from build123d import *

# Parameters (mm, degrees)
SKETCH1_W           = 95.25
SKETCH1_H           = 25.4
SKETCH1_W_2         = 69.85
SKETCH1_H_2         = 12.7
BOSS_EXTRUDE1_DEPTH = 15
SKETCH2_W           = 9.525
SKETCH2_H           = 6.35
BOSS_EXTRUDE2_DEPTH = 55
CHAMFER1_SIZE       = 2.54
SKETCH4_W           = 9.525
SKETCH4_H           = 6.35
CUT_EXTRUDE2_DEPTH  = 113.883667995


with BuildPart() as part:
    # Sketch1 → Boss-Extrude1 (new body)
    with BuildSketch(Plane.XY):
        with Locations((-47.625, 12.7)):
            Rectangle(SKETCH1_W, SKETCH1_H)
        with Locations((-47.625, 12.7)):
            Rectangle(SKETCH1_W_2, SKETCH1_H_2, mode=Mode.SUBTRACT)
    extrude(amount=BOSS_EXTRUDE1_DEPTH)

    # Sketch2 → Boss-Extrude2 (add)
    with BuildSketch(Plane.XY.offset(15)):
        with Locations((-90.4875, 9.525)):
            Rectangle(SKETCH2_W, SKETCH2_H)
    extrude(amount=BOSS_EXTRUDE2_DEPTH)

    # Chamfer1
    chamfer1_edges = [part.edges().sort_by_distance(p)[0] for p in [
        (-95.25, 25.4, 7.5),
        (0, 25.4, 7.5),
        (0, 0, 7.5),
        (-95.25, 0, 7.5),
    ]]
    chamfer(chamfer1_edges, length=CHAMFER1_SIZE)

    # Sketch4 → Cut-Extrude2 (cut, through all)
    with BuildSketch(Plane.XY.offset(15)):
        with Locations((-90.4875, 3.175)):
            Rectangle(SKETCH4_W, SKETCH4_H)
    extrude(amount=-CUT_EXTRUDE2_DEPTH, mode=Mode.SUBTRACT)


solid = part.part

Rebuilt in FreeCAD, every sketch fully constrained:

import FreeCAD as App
import Part
import Sketcher
Q = App.Units.Quantity


def edges_at(feature, points):
    """Names of the edges that pass closest to the given points."""
    edges = feature.Shape.Edges
    near = lambda p: min(range(len(edges)), key=lambda i: edges[i].distToShape(Part.Vertex(*p))[0])
    return sorted({f"Edge{near(p) + 1}" for p in points})

doc = App.newDocument("Part")
body = doc.addObject("PartDesign::Body", "Body")

# Sketch on XY plane
sketch1 = body.newObject("Sketcher::SketchObject", "Sketch")
sketch1.AttachmentSupport = (doc.getObject("XY_Plane"), [""])
sketch1.MapMode = "FlatFace"
sketch1.addGeometry([
    Part.LineSegment(App.Vector(-95, 25, 0), App.Vector(-95, 0, 0)),  # 0
    Part.LineSegment(App.Vector(-95, 0, 0), App.Vector(0, 0, 0)),  # 1
    Part.LineSegment(App.Vector(0, 0, 0), App.Vector(0, 25, 0)),  # 2
    Part.LineSegment(App.Vector(0, 25, 0), App.Vector(-95, 25, 0)),  # 3
    Part.LineSegment(App.Vector(-13, 6, 0), App.Vector(-83, 6, 0)),  # 4
    Part.LineSegment(App.Vector(-83, 6, 0), App.Vector(-83, 19, 0)),  # 5
    Part.LineSegment(App.Vector(-83, 19, 0), App.Vector(-13, 19, 0)),  # 6
    Part.LineSegment(App.Vector(-13, 19, 0), App.Vector(-13, 6, 0)),  # 7
], False)
sketch1.addConstraint([
    Sketcher.Constraint("Coincident", 0, 2, 1, 1),
    Sketcher.Constraint("Coincident", 1, 2, 2, 1),
    Sketcher.Constraint("Coincident", 2, 2, 3, 1),
    Sketcher.Constraint("Coincident", 3, 2, 0, 1),
    Sketcher.Constraint("Coincident", 4, 2, 5, 1),
    Sketcher.Constraint("Coincident", 5, 2, 6, 1),
    Sketcher.Constraint("Coincident", 6, 2, 7, 1),
    Sketcher.Constraint("Coincident", 7, 2, 4, 1),
    Sketcher.Constraint("Vertical", 0),
    Sketcher.Constraint("Horizontal", 1),
    Sketcher.Constraint("Vertical", 2),
    Sketcher.Constraint("Horizontal", 3),
    Sketcher.Constraint("Horizontal", 4),
    Sketcher.Constraint("Vertical", 5),
    Sketcher.Constraint("Horizontal", 6),
    Sketcher.Constraint("Vertical", 7),
    Sketcher.Constraint("Coincident", 1, 2, -1, 1),
    Sketcher.Constraint("DistanceY", 0, 2, 0, 1, Q("1 in")),
    Sketcher.Constraint("DistanceY", 5, 1, 5, 2, Q("0.5 in")),
    Sketcher.Constraint("DistanceX", 1, 1, 1, 2, Q("3.75 in")),
    Sketcher.Constraint("DistanceX", 4, 2, 4, 1, Q("2.75 in")),
    Sketcher.Constraint("DistanceX", 6, 2, -1, 1, Q("0.5 in")),
    Sketcher.Constraint("DistanceY", -1, 1, 4, 2, Q("0.25 in")),
])
pad1 = body.newObject("PartDesign::Pad", "Pad")
pad1.Profile = sketch1
pad1.Length = 15

# Sketch on XY plane
sketch2 = body.newObject("Sketcher::SketchObject", "Sketch001")
sketch2.AttachmentSupport = (doc.getObject("XY_Plane"), [""])
sketch2.MapMode = "FlatFace"
sketch2.AttachmentOffset = App.Placement(App.Vector(0, 0, 15), App.Rotation())
sketch2.addGeometry([
    Part.LineSegment(App.Vector(-95, 13, 0), App.Vector(-95, 6, 0)),
    Part.LineSegment(App.Vector(-95, 6, 0), App.Vector(-86, 6, 0)),
    Part.LineSegment(App.Vector(-86, 6, 0), App.Vector(-86, 13, 0)),
    Part.LineSegment(App.Vector(-86, 13, 0), App.Vector(-95, 13, 0)),
], False)
sketch2.addConstraint([
    Sketcher.Constraint("Coincident", 0, 2, 1, 1),
    Sketcher.Constraint("Coincident", 1, 2, 2, 1),
    Sketcher.Constraint("Coincident", 2, 2, 3, 1),
    Sketcher.Constraint("Coincident", 3, 2, 0, 1),
    Sketcher.Constraint("Vertical", 0),
    Sketcher.Constraint("Horizontal", 1),
    Sketcher.Constraint("Vertical", 2),
    Sketcher.Constraint("Horizontal", 3),
    Sketcher.Constraint("DistanceY", 0, 2, 0, 1, Q("0.25 in")),
    Sketcher.Constraint("DistanceY", -1, 1, 2, 2, Q("0.5 in")),
    Sketcher.Constraint("DistanceX", 1, 1, 1, 2, Q("0.375 in")),
    Sketcher.Constraint("DistanceX", 0, 2, -1, 1, Q("3.75 in")),
])
pad2 = body.newObject("PartDesign::Pad", "Pad001")
pad2.Profile = sketch2
pad2.Length = 55
doc.recompute()

chamfer = body.newObject("PartDesign::Chamfer", "Chamfer")
chamfer.Base = (pad2, edges_at(pad2, [
    (-95.25, 25.4, 7.5),
    (0, 25.4, 7.5),
    (0, 0, 7.5),
    (-95.25, 0, 7.5),
]))
chamfer.Size = Q("0.1 in")

# Sketch on XY plane
sketch3 = body.newObject("Sketcher::SketchObject", "Sketch002")
sketch3.AttachmentSupport = (doc.getObject("XY_Plane"), [""])
sketch3.MapMode = "FlatFace"
sketch3.AttachmentOffset = App.Placement(App.Vector(0, 0, 15), App.Rotation())
sketch3.addGeometry([
    Part.LineSegment(App.Vector(-95, 6, 0), App.Vector(-95, 0, 0)),
    Part.LineSegment(App.Vector(-95, 0, 0), App.Vector(-86, 0, 0)),
    Part.LineSegment(App.Vector(-86, 0, 0), App.Vector(-86, 6, 0)),
    Part.LineSegment(App.Vector(-86, 6, 0), App.Vector(-95, 6, 0)),
], False)
sketch3.addConstraint([
    Sketcher.Constraint("Coincident", 0, 2, 1, 1),
    Sketcher.Constraint("Coincident", 1, 2, 2, 1),
    Sketcher.Constraint("Coincident", 2, 2, 3, 1),
    Sketcher.Constraint("Coincident", 3, 2, 0, 1),
    Sketcher.Constraint("Vertical", 0),
    Sketcher.Constraint("Horizontal", 1),
    Sketcher.Constraint("Vertical", 2),
    Sketcher.Constraint("Horizontal", 3),
    Sketcher.Constraint("PointOnObject", 0, 2, -1),
    Sketcher.Constraint("DistanceY", 0, 2, 0, 1, Q("0.25 in")),
    Sketcher.Constraint("DistanceX", 1, 1, 1, 2, Q("0.375 in")),
    Sketcher.Constraint("DistanceX", 0, 2, -1, 1, Q("3.75 in")),
])
pocket1 = body.newObject("PartDesign::Pocket", "Pocket")
pocket1.Profile = sketch3
pocket1.Type = "ThroughAll"

doc.recompute()
